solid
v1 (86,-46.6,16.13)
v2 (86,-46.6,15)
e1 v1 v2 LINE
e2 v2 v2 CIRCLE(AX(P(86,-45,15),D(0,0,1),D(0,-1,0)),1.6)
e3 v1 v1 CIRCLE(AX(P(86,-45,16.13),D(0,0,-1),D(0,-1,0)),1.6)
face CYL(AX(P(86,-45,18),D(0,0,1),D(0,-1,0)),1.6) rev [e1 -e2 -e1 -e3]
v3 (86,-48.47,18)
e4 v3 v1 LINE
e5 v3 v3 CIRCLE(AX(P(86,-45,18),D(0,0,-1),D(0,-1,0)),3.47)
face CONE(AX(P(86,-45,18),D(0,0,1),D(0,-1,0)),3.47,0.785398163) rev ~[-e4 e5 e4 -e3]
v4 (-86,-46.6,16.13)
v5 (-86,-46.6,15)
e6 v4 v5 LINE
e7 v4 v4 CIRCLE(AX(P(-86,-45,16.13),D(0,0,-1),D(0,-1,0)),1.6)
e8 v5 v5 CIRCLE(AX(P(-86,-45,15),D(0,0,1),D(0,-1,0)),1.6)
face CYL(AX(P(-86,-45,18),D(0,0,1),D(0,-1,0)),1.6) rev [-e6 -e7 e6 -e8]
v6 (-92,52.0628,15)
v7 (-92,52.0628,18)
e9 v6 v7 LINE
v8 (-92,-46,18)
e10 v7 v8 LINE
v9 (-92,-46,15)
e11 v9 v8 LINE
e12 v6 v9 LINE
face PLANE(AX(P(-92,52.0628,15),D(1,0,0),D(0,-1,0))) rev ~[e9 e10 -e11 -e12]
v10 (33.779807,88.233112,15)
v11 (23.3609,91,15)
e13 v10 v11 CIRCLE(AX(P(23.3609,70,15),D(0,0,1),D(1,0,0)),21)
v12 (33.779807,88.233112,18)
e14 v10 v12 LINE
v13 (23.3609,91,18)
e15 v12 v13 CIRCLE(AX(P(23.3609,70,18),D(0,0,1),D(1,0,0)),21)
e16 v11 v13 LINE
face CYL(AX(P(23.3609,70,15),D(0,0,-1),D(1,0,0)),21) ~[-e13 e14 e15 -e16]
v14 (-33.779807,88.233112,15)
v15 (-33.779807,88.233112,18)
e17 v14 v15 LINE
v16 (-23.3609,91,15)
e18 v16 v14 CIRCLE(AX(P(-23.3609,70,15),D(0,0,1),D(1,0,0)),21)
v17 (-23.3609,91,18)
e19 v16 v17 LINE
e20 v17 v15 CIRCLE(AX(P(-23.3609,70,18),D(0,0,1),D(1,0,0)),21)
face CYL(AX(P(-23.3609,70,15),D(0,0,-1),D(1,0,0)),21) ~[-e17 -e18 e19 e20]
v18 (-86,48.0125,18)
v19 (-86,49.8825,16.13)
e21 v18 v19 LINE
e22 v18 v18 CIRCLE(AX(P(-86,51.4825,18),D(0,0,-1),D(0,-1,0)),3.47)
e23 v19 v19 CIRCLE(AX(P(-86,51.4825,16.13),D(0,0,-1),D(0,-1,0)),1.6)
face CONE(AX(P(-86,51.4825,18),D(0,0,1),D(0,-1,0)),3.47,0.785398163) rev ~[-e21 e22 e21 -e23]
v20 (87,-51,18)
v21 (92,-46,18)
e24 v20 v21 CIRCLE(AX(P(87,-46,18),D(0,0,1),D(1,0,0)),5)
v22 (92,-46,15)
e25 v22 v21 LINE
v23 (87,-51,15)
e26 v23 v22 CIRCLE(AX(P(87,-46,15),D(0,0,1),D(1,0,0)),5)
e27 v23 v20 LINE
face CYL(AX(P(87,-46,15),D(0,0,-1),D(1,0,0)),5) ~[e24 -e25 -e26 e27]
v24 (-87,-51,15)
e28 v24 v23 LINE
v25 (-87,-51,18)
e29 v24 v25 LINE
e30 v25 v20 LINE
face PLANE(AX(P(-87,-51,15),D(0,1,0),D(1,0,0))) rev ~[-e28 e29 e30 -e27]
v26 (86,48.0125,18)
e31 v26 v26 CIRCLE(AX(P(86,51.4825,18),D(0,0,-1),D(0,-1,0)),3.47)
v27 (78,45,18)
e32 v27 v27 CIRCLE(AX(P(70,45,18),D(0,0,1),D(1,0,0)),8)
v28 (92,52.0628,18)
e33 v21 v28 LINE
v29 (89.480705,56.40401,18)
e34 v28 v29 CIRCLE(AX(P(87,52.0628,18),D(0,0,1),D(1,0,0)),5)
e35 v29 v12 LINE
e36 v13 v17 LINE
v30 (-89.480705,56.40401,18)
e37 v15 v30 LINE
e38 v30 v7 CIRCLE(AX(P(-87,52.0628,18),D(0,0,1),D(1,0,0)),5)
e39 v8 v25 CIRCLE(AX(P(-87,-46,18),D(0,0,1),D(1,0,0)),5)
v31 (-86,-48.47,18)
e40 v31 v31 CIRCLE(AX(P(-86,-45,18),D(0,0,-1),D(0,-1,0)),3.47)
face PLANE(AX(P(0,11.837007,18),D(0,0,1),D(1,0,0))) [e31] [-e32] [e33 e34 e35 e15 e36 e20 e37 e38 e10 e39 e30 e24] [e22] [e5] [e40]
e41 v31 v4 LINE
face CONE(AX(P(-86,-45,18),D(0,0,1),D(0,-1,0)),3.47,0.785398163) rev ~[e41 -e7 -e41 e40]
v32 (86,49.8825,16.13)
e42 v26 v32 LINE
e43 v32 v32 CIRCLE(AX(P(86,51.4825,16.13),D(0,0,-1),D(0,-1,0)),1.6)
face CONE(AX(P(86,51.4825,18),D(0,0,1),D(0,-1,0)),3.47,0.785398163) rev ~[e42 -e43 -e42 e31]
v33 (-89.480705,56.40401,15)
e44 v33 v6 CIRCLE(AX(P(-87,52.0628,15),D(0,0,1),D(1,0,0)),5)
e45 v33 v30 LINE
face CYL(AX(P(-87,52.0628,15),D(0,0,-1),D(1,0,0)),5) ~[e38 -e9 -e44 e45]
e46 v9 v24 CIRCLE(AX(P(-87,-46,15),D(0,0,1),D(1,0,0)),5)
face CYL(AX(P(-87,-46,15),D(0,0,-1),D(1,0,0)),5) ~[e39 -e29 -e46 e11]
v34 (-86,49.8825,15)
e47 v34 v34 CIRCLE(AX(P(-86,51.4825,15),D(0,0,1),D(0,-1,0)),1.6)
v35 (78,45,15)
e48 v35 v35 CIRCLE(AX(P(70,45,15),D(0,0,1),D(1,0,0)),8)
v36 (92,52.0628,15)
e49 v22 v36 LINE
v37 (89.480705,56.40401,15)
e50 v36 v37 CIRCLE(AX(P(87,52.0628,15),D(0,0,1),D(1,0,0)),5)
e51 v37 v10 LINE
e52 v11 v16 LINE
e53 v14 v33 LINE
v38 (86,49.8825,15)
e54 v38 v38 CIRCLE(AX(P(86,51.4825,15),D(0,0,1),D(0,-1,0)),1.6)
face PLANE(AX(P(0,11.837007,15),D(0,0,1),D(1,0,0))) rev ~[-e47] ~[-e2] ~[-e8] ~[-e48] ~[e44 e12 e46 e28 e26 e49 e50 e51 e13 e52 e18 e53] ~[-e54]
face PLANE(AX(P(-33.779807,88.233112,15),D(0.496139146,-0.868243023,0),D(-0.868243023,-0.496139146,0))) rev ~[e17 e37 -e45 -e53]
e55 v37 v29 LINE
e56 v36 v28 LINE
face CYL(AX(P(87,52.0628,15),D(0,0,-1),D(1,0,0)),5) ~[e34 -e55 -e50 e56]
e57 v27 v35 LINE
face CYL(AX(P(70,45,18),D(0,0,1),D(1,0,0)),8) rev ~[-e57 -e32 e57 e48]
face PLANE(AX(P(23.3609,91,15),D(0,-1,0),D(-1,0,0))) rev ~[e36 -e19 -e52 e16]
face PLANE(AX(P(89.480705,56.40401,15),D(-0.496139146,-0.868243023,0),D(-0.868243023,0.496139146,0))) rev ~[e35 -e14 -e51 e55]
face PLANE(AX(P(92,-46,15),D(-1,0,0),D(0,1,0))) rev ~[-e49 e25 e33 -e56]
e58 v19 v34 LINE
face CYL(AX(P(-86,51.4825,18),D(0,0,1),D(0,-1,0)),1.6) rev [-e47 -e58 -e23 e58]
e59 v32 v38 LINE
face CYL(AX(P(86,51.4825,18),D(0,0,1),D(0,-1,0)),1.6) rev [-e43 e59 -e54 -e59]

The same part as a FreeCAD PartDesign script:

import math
import FreeCAD as App
import Part
import Sketcher
Q = App.Units.Quantity

doc = App.newDocument("Part")
params = doc.addObject("Spreadsheet::Sheet", "Params")
for row, (alias, value) in enumerate([
    ("sketch1_radius", "5 mm"),
    ("sketch1_radius2", "21 mm"),
    ("sketch1_width", "174 mm"),
    ("pad1_length", "3 mm"),
    ("sketch2_diameter", "3.2 mm"),
    ("hole_diameter", "3.2 mm"),
    ("hole_csink_diameter", "6.94 mm"),
    ("sketch3_diameter", "3.2 mm"),
    ("hole2_diameter", "3.2 mm"),
    ("hole2_csink_diameter", "6.94 mm"),
    ("sketch4_diameter", "3.2 mm"),
    ("hole3_diameter", "3.2 mm"),
    ("hole3_csink_diameter", "6.94 mm"),
    ("sketch5_diameter", "3.2 mm"),
    ("hole4_diameter", "3.2 mm"),
    ("hole4_csink_diameter", "6.94 mm"),
    ("sketch6_diameter", "16 mm"),
], start=1):
    params.set(f"A{row}", alias)
    params.set(f"B{row}", "=" + value)
    params.setAlias(f"B{row}", alias)

body = doc.addObject("PartDesign::Body", "Body")

# Sketch on XY plane
sketch1 = body.newObject("Sketcher::SketchObject", "Sketch")
sketch1.AttachmentSupport = (doc.getObject("XY_Plane"), [""])
sketch1.MapMode = "FlatFace"
sketch1.AttachmentOffset = App.Placement(App.Vector(0, 0, 15), App.Rotation())
sketch1.addGeometry([
    Part.ArcOfCircle(Part.Circle(App.Vector(-87, 52.1, 0), App.Vector(0, 0, 1), 5), math.radians(120), math.radians(180)),  # 0
    Part.LineSegment(App.Vector(-92, 52.1, 0), App.Vector(-92, -46, 0)),  # 1
    Part.ArcOfCircle(Part.Circle(App.Vector(-87, -46, 0), App.Vector(0, 0, 1), 5), math.radians(180), math.radians(270)),  # 2
    Part.LineSegment(App.Vector(-87, -51, 0), App.Vector(87, -51, 0)),  # 3
    Part.ArcOfCircle(Part.Circle(App.Vector(87, -46, 0), App.Vector(0, 0, 1), 5), math.radians(-90), math.radians(0)),  # 4
    Part.LineSegment(App.Vector(92, -46, 0), App.Vector(92, 52.1, 0)),  # 5
    Part.ArcOfCircle(Part.Circle(App.Vector(87, 52.1, 0), App.Vector(0, 0, 1), 5), math.radians(0), math.radians(60)),  # 6
    Part.LineSegment(App.Vector(89.5, 56.4, 0), App.Vector(33.8, 88.2, 0)),  # 7
    Part.ArcOfCircle(Part.Circle(App.Vector(23.4, 70, 0), App.Vector(0, 0, 1), 21), math.radians(60), math.radians(90)),  # 8
    Part.LineSegment(App.Vector(23.4, 91, 0), App.Vector(-23.4, 91, 0)),  # 9
    Part.ArcOfCircle(Part.Circle(App.Vector(-23.4, 70, 0), App.Vector(0, 0, 1), 21), math.radians(90), math.radians(120)),  # 10
    Part.LineSegment(App.Vector(-33.8, 88.2, 0), App.Vector(-89.5, 56.4, 0)),  # 11
], False)
sketch1.addConstraint([
    Sketcher.Constraint("Tangent", 0, 2, 1, 1),
    Sketcher.Constraint("Tangent", 1, 2, 2, 1),
    Sketcher.Constraint("Tangent", 2, 2, 3, 1),
    Sketcher.Constraint("Tangent", 3, 2, 4, 1),
    Sketcher.Constraint("Tangent", 4, 2, 5, 1),
    Sketcher.Constraint("Tangent", 5, 2, 6, 1),
    Sketcher.Constraint("Tangent", 6, 2, 7, 1),
    Sketcher.Constraint("Tangent", 7, 2, 8, 1),
    Sketcher.Constraint("Tangent", 8, 2, 9, 1),
    Sketcher.Constraint("Tangent", 9, 2, 10, 1),
    Sketcher.Constraint("Tangent", 10, 2, 11, 1),
    Sketcher.Constraint("Tangent", 11, 2, 0, 1),
    Sketcher.Constraint("Vertical", 1),
    Sketcher.Constraint("Horizontal", 3),
    Sketcher.Constraint("Vertical", 5),
    Sketcher.Constraint("Horizontal", 9),
    Sketcher.Constraint("Equal", 0, 2),
    Sketcher.Constraint("Equal", 2, 4),
    Sketcher.Constraint("Equal", 4, 6),
    Sketcher.Constraint("Equal", 8, 10),
    Sketcher.Constraint("Symmetric", 0, 3, 6, 3, -2),
    Sketcher.Constraint("Horizontal", 7, 2, 10, 2),
    Sketcher.Constraint("Radius", 0, Q("5 mm")),
    Sketcher.Constraint("Radius", 8, Q("21 mm")),
    Sketcher.Constraint("DistanceX", 3, 1, 3, 2, Q("174 mm")),
    Sketcher.Constraint("DistanceY", 2, 3, -1, 1, Q("46 mm")),
    Sketcher.Constraint("DistanceY", -1, 1, 8, 3, Q("70 mm")),
    Sketcher.Constraint("DistanceX", 9, 2, 9, 1, Q("46.7218 mm")),
    Sketcher.Constraint("DistanceY", 1, 2, 1, 1, Q("98.0628 mm")),
])
sketch1.setExpression("Constraints[22]", "Params.sketch1_radius")
sketch1.setExpression("Constraints[23]", "Params.sketch1_radius2")
sketch1.setExpression("Constraints[24]", "Params.sketch1_width")
pad1 = body.newObject("PartDesign::Pad", "Pad")
pad1.Profile = sketch1
pad1.setExpression("Length", "Params.pad1_length")

# Sketch on XY plane
sketch2 = body.newObject("Sketcher::SketchObject", "Sketch001")
sketch2.AttachmentSupport = (doc.getObject("XY_Plane"), [""])
sketch2.MapMode = "FlatFace"
sketch2.AttachmentOffset = App.Placement(App.Vector(0, 0, 18), App.Rotation())
sketch2.addGeometry(Part.Circle(App.Vector(-86, 51.5, 0), App.Vector(0, 0, 1), 1.6), False)
sketch2.addConstraint([
    Sketcher.Constraint("Diameter", 0, Q("3.2 mm")),
    Sketcher.Constraint("DistanceX", 0, 3, -1, 1, Q("86 mm")),
    Sketcher.Constraint("DistanceY", -1, 1, 0, 3, Q("51.4825 mm")),
])
sketch2.setExpression("Constraints[0]", "Params.sketch2_diameter")
doc.recompute()
hole = body.newObject("PartDesign::Hole", "Hole")
hole.Profile = sketch2
hole.ThreadType = "None"
hole.setExpression("Diameter", "Params.hole_diameter")
hole.DepthType = "ThroughAll"
hole.HoleCutType = "Countersink"
hole.setExpression("HoleCutDiameter", "Params.hole_csink_diameter")
hole.HoleCutCountersinkAngle = 90

# Sketch on XY plane
sketch3 = body.newObject("Sketcher::SketchObject", "Sketch002")
sketch3.AttachmentSupport = (doc.getObject("XY_Plane"), [""])
sketch3.MapMode = "FlatFace"
sketch3.AttachmentOffset = App.Placement(App.Vector(0, 0, 18), App.Rotation())
sketch3.addGeometry(Part.Circle(App.Vector(86, 51.5, 0), App.Vector(0, 0, 1), 1.6), False)
sketch3.addConstraint([
    Sketcher.Constraint("Diameter", 0, Q("3.2 mm")),
    Sketcher.Constraint("DistanceX", -1, 1, 0, 3, Q("86 mm")),
    Sketcher.Constraint("DistanceY", -1, 1, 0, 3, Q("51.4825 mm")),
])
sketch3.setExpression("Constraints[0]", "Params.sketch3_diameter")
doc.recompute()
hole2 = body.newObject("PartDesign::Hole", "Hole001")
hole2.Profile = sketch3
hole2.ThreadType = "None"
hole2.setExpression("Diameter", "Params.hole2_diameter")
hole2.DepthType = "ThroughAll"
hole2.HoleCutType = "Countersink"
hole2.setExpression("HoleCutDiameter", "Params.hole2_csink_diameter")
hole2.HoleCutCountersinkAngle = 90

# Sketch on XY plane
sketch4 = body.newObject("Sketcher::SketchObject", "Sketch003")
sketch4.AttachmentSupport = (doc.getObject("XY_Plane"), [""])
sketch4.MapMode = "FlatFace"
sketch4.AttachmentOffset = App.Placement(App.Vector(0, 0, 18), App.Rotation())
sketch4.addGeometry(Part.Circle(App.Vector(86, -45, 0), App.Vector(0, 0, 1), 1.6), False)
sketch4.addConstraint([
    Sketcher.Constraint("Diameter", 0, Q("3.2 mm")),
    Sketcher.Constraint("DistanceX", -1, 1, 0, 3, Q("86 mm")),
    Sketcher.Constraint("DistanceY", 0, 3, -1, 1, Q("45 mm")),
])
sketch4.setExpression("Constraints[0]", "Params.sketch4_diameter")
doc.recompute()
hole3 = body.newObject("PartDesign::Hole", "Hole002")
hole3.Profile = sketch4
hole3.ThreadType = "None"
hole3.setExpression("Diameter", "Params.hole3_diameter")
hole3.DepthType = "ThroughAll"
hole3.HoleCutType = "Countersink"
hole3.setExpression("HoleCutDiameter", "Params.hole3_csink_diameter")
hole3.HoleCutCountersinkAngle = 90

# Sketch on XY plane
sketch5 = body.newObject("Sketcher::SketchObject", "Sketch004")
sketch5.AttachmentSupport = (doc.getObject("XY_Plane"), [""])
sketch5.MapMode = "FlatFace"
sketch5.AttachmentOffset = App.Placement(App.Vector(0, 0, 18), App.Rotation())
sketch5.addGeometry(Part.Circle(App.Vector(-86, -45, 0), App.Vector(0, 0, 1), 1.6), False)
sketch5.addConstraint([
    Sketcher.Constraint("Diameter", 0, Q("3.2 mm")),
    Sketcher.Constraint("DistanceX", 0, 3, -1, 1, Q("86 mm")),
    Sketcher.Constraint("DistanceY", 0, 3, -1, 1, Q("45 mm")),
])
sketch5.setExpression("Constraints[0]", "Params.sketch5_diameter")
doc.recompute()
hole4 = body.newObject("PartDesign::Hole", "Hole003")
hole4.Profile = sketch5
hole4.ThreadType = "None"
hole4.setExpression("Diameter", "Params.hole4_diameter")
hole4.DepthType = "ThroughAll"
hole4.HoleCutType = "Countersink"
hole4.setExpression("HoleCutDiameter", "Params.hole4_csink_diameter")
hole4.HoleCutCountersinkAngle = 90

# Sketch on XY plane
sketch6 = body.newObject("Sketcher::SketchObject", "Sketch005")
sketch6.AttachmentSupport = (doc.getObject("XY_Plane"), [""])
sketch6.MapMode = "FlatFace"
sketch6.AttachmentOffset = App.Placement(App.Vector(0, 0, 18), App.Rotation())
sketch6.addGeometry(Part.Circle(App.Vector(70, 45, 0), App.Vector(0, 0, 1), 8), False)
sketch6.addConstraint([
    Sketcher.Constraint("Diameter", 0, Q("16 mm")),
    Sketcher.Constraint("DistanceX", -1, 1, 0, 3, Q("70 mm")),
    Sketcher.Constraint("DistanceY", -1, 1, 0, 3, Q("45 mm")),
])
sketch6.setExpression("Constraints[0]", "Params.sketch6_diameter")
pocket1 = body.newObject("PartDesign::Pocket", "Pocket")
pocket1.Profile = sketch6
pocket1.Type = "ThroughAll"

doc.recompute()
